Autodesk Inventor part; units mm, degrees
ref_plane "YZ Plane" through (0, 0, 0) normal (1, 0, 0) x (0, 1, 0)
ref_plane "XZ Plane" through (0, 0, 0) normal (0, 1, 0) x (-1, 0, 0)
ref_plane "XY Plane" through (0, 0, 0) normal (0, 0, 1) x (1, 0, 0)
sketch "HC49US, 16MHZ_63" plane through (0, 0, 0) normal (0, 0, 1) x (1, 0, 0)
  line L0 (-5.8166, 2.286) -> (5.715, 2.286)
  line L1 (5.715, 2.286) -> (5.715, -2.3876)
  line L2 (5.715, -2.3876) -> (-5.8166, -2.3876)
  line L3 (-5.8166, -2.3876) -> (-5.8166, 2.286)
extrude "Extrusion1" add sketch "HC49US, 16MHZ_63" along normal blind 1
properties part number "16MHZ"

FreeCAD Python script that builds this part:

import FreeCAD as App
import Part
import Sketcher
Q = App.Units.Quantity

doc = App.newDocument("Part")
params = doc.addObject("Spreadsheet::Sheet", "Params")
for row, (alias, value) in enumerate([
    ("sketch1_width", "0.454 in"),
    ("sketch1_height", "0.184 in"),
    ("pad1_length", "1 mm"),
], start=1):
    params.set(f"A{row}", alias)
    params.set(f"B{row}", "=" + value)
    params.setAlias(f"B{row}", alias)

body = doc.addObject("PartDesign::Body", "Body")

sketch1 = body.newObject("Sketcher::SketchObject", "Sketch")
sketch1.AttachmentSupport = (doc.getObject("XY_Plane"), [""])
sketch1.MapMode = "FlatFace"
sketch1.addGeometry([
    Part.LineSegment(App.Vector(5.7, 2.3, 0), App.Vector(-5.8, 2.3, 0)),
    Part.LineSegment(App.Vector(-5.8, 2.3, 0), App.Vector(-5.8, -2.4, 0)),
    Part.LineSegment(App.Vector(-5.8, -2.4, 0), App.Vector(5.7, -2.4, 0)),
    Part.LineSegment(App.Vector(5.7, -2.4, 0), App.Vector(5.7, 2.3, 0)),
], False)
sketch1.addConstraint([
    Sketcher.Constraint("Coincident", 0, 2, 1, 1),
    Sketcher.Constraint("Coincident", 1, 2, 2, 1),
    Sketcher.Constraint("Coincident", 2, 2, 3, 1),
    Sketcher.Constraint("Coincident", 3, 2, 0, 1),
    Sketcher.Constraint("Horizontal", 0),
    Sketcher.Constraint("Vertical", 1),
    Sketcher.Constraint("Horizontal", 2),
    Sketcher.Constraint("Vertical", 3),
    Sketcher.Constraint("DistanceX", 0, 2, 0, 1, Q("0.454 in")),
    Sketcher.Constraint("DistanceY", 1, 2, 1, 1, Q("0.184 in")),
    Sketcher.Constraint("DistanceY", -1, 1, 0, 2, Q("0.09 in")),
    Sketcher.Constraint("DistanceX", 0, 2, -1, 1, Q("0.229 in")),
])
sketch1.setExpression("Constraints[8]", "Params.sketch1_width")
sketch1.setExpression("Constraints[9]", "Params.sketch1_height")
pad1 = body.newObject("PartDesign::Pad", "Pad")
pad1.Profile = sketch1
pad1.setExpression("Length", "Params.pad1_length")

doc.recompute()
